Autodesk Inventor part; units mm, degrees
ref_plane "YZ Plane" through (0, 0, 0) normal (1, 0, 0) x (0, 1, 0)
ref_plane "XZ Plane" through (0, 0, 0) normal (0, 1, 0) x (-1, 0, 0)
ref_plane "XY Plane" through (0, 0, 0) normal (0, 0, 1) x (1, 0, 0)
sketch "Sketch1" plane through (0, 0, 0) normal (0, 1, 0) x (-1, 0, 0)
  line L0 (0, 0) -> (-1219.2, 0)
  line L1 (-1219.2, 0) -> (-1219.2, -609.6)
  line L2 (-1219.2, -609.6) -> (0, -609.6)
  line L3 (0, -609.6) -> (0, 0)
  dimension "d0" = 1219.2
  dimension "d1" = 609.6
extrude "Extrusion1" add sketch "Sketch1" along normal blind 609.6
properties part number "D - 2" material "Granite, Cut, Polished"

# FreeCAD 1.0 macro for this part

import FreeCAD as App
import Part
import Sketcher
Q = App.Units.Quantity


def add_polygon(sketch, points):
    """Adds a closed chain of lines whose ends are joined by coincident constraints."""
    first, n = sketch.GeometryCount, len(points)
    for a, b in zip(points, points[1:] + points[:1]):
        sketch.addGeometry(Part.LineSegment(App.Vector(*a, 0), App.Vector(*b, 0)), False)
    for i in range(n):
        sketch.addConstraint(Sketcher.Constraint("Coincident", first + i, 2, first + (i + 1) % n, 1))

doc = App.newDocument("Part")
body = doc.addObject("PartDesign::Body", "Body")

# Sketch on XZ plane
sketch1 = body.newObject("Sketcher::SketchObject", "Sketch")
sketch1.AttachmentSupport = (doc.getObject("XZ_Plane"), [""])
sketch1.MapMode = "FlatFace"
add_polygon(sketch1, [(0, -610), (0, 0), (1219, 0), (1219, -610)])  # lines 0-3
sketch1.addConstraint([
    Sketcher.Constraint("Vertical", 0),
    Sketcher.Constraint("Horizontal", 1),
    Sketcher.Constraint("Vertical", 2),
    Sketcher.Constraint("Horizontal", 3),
    Sketcher.Constraint("Coincident", 0, 2, -1, 1),
    Sketcher.Constraint("DistanceX", 1, 1, 1, 2, Q("48 in")),
    Sketcher.Constraint("DistanceY", 0, 1, 0, 2, Q("24 in")),
])
pad1 = body.newObject("PartDesign::Pad", "Pad")
pad1.Profile = sketch1
pad1.Length = Q("24 in")
pad1.Reversed = True

doc.recompute()
